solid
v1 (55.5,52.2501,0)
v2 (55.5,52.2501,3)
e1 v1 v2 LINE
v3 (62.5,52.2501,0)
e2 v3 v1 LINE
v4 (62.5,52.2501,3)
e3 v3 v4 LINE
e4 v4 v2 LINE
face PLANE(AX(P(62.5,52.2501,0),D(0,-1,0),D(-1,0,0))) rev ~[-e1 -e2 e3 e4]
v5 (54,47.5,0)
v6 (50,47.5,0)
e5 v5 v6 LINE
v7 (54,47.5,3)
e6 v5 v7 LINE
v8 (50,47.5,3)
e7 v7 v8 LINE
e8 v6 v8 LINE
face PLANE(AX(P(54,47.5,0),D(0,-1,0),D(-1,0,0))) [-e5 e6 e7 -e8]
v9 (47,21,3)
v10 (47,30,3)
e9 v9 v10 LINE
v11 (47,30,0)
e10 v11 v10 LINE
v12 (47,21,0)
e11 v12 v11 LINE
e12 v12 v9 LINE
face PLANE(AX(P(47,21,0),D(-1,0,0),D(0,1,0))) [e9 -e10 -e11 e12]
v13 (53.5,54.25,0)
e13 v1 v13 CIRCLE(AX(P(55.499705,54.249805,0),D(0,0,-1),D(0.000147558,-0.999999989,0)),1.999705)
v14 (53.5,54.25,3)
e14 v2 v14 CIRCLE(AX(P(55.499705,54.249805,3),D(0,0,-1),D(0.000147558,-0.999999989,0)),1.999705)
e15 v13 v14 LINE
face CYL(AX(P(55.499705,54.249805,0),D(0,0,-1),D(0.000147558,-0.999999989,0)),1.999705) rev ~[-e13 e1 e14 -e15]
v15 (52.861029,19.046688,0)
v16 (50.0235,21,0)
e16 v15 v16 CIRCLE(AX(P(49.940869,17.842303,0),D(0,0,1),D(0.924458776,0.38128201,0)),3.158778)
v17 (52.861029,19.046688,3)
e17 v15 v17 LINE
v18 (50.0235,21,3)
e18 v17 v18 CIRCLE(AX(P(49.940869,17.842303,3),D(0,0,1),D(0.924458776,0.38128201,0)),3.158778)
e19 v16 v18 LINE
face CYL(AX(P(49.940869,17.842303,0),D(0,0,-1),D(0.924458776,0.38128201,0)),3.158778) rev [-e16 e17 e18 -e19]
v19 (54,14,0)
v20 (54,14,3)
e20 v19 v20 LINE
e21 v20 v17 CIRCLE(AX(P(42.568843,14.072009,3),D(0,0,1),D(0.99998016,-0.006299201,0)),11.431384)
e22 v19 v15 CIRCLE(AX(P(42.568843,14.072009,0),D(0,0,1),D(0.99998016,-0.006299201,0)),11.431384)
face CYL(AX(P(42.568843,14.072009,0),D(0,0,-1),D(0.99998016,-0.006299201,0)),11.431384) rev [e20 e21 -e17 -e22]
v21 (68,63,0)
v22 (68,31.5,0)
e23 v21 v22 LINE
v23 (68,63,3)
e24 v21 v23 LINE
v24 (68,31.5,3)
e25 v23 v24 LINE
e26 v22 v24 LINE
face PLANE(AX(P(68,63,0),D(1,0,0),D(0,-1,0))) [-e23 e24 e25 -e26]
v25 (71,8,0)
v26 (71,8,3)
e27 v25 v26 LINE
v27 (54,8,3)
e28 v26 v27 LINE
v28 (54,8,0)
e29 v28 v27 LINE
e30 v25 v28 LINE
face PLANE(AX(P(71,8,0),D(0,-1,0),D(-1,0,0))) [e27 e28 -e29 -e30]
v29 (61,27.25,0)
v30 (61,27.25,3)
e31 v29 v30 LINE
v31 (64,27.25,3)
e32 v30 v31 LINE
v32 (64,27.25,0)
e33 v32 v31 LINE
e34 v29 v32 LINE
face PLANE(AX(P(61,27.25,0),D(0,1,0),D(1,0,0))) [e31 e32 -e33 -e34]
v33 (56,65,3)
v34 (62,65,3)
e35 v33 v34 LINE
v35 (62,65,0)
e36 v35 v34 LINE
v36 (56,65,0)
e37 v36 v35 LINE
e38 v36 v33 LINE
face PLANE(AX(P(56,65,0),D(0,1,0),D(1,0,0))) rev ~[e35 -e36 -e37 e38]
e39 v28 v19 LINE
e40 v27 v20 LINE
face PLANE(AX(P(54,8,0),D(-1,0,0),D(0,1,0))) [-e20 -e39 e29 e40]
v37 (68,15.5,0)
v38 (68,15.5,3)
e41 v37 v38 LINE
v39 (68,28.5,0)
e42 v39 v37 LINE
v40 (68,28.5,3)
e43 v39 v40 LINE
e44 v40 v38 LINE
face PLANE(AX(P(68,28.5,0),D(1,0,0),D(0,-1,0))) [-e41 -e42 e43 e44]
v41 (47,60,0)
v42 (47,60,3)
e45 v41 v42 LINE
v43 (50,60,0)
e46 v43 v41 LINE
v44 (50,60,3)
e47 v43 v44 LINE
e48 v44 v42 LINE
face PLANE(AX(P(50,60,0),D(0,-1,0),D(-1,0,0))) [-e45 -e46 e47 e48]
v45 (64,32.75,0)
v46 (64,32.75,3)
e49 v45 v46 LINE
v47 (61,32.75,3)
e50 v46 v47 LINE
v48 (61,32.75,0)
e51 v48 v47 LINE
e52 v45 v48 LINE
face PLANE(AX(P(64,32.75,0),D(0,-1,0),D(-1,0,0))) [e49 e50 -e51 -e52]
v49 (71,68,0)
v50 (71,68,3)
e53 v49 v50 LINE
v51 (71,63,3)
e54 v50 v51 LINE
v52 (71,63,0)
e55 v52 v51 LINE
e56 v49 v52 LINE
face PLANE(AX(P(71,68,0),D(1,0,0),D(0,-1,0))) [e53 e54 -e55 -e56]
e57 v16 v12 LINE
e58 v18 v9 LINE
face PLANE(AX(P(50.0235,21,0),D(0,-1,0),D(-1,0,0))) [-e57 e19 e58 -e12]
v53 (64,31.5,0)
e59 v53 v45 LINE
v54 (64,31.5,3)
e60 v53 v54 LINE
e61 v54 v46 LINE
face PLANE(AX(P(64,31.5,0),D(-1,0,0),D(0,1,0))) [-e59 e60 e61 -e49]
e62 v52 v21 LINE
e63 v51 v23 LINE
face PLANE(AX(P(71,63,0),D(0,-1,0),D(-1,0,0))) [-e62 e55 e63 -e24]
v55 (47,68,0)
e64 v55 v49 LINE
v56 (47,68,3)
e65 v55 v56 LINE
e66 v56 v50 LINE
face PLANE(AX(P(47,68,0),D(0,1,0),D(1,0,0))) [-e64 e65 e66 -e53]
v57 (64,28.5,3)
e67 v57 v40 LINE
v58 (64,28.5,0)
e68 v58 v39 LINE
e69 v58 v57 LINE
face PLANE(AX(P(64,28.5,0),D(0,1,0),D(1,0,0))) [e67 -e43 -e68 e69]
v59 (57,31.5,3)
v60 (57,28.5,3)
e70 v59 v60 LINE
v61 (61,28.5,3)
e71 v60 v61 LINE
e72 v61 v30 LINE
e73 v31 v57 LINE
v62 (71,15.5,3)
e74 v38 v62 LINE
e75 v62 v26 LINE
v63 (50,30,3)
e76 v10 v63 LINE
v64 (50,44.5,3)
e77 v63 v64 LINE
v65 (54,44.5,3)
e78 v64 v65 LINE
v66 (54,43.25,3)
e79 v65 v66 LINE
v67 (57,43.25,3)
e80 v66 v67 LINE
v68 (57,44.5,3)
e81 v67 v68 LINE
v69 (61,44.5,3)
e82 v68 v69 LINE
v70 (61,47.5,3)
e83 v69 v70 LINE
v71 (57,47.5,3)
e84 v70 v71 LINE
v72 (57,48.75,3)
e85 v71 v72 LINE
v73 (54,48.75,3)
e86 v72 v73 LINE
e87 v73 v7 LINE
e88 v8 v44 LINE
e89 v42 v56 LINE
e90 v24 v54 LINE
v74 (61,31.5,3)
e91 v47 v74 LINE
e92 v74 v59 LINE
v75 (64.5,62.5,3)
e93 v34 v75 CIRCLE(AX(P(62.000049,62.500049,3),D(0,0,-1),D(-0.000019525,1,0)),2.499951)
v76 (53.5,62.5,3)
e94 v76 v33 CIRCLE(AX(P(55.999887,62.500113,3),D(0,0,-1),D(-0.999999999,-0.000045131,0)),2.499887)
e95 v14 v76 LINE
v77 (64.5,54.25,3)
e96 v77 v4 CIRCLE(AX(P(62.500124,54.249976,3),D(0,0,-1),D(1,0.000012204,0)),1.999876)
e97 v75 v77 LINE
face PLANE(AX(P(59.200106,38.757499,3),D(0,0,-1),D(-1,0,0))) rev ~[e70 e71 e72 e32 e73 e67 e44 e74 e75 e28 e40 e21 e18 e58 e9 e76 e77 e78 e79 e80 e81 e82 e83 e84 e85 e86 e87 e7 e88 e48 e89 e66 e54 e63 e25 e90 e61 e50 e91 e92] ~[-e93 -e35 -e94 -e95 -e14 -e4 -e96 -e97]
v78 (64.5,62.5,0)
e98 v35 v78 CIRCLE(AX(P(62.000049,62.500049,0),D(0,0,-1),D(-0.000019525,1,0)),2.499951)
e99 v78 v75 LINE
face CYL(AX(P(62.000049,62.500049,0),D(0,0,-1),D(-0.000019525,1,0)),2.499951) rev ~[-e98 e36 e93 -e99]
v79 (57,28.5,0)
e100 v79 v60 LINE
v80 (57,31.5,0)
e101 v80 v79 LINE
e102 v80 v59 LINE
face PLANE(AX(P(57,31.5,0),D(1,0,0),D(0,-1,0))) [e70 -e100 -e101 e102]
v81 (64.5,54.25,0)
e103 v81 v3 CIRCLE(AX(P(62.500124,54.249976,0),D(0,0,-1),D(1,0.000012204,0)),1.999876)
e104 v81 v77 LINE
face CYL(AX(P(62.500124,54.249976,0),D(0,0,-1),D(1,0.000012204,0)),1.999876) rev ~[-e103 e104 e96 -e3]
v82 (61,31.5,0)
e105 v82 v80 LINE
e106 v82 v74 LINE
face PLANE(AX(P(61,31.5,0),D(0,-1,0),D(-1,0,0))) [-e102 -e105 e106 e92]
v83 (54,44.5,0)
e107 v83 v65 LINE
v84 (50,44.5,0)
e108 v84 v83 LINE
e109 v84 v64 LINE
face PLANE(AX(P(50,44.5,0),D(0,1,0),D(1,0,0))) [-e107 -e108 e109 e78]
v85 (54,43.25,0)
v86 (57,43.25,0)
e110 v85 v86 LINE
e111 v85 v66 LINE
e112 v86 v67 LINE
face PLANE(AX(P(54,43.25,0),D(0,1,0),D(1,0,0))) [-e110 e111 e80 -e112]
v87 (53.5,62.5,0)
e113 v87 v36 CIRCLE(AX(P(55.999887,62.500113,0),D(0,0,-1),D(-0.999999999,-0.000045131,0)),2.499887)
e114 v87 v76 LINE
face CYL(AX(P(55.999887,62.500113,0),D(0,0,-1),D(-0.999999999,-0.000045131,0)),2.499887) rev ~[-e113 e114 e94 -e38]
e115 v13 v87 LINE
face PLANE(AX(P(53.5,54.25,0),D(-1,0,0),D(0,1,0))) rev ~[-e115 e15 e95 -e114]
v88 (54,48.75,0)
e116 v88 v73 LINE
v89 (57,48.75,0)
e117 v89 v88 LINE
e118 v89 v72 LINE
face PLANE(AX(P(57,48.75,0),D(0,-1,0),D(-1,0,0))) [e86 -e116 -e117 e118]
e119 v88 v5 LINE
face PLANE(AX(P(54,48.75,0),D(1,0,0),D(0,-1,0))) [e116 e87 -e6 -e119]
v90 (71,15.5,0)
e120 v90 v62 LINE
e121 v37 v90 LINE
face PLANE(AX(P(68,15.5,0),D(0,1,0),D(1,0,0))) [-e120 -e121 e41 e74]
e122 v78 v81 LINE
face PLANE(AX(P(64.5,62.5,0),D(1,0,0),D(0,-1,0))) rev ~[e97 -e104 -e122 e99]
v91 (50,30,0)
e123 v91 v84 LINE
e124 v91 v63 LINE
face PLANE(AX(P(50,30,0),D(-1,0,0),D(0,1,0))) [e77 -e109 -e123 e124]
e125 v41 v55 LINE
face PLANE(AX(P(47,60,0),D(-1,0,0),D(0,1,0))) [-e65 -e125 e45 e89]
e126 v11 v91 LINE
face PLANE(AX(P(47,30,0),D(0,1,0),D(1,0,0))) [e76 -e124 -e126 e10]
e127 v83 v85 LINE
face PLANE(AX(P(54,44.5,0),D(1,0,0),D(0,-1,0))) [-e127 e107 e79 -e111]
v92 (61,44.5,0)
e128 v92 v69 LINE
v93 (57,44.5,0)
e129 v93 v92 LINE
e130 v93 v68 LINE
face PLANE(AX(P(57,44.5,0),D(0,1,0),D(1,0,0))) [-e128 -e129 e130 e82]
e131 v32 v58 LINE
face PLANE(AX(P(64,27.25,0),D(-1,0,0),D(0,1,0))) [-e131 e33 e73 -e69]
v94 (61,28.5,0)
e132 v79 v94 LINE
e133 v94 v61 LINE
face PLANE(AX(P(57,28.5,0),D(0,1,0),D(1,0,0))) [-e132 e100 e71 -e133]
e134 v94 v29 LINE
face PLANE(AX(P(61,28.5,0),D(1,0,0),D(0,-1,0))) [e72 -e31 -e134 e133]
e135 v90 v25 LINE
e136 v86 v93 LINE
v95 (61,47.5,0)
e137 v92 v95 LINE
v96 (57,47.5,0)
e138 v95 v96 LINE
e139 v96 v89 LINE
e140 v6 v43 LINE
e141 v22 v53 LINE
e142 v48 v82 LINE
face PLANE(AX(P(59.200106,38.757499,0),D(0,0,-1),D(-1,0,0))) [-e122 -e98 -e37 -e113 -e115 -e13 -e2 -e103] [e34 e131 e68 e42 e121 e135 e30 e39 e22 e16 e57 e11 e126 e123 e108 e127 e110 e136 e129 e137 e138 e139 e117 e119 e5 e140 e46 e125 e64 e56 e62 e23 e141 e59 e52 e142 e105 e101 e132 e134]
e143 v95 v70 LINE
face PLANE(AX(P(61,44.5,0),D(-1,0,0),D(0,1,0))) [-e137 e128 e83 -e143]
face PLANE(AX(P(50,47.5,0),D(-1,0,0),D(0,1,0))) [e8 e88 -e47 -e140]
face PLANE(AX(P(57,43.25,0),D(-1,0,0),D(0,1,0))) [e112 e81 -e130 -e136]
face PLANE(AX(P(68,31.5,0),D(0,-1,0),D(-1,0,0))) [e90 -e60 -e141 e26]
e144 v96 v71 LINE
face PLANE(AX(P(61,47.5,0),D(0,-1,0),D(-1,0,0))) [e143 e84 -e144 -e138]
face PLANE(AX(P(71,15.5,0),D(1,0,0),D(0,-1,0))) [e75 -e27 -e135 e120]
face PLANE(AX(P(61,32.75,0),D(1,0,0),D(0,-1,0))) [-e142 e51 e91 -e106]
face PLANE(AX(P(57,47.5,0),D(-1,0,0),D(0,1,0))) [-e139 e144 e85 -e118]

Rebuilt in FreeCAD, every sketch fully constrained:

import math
import FreeCAD as App
import Part
import Sketcher

doc = App.newDocument("Part")
body = doc.addObject("PartDesign::Body", "Body")

# Sketch on XY plane
sketch1 = doc.addObject("Sketcher::SketchObject", "Sketch")
body.addObject(sketch1)
sketch1.AttachmentSupport = (doc.XY_Plane, [""])
sketch1.MapMode = "FlatFace"
sketch1.addGeometry([
    Part.LineSegment(App.Vector(71, 63, 0), App.Vector(71, 68, 0)),  # 0
    Part.LineSegment(App.Vector(71, 68, 0), App.Vector(47, 68, 0)),  # 1
    Part.LineSegment(App.Vector(47, 68, 0), App.Vector(47, 60, 0)),  # 2
    Part.LineSegment(App.Vector(47, 60, 0), App.Vector(50, 60, 0)),  # 3
    Part.LineSegment(App.Vector(50, 60, 0), App.Vector(50, 47.5, 0)),  # 4
    Part.LineSegment(App.Vector(50, 47.5, 0), App.Vector(54, 47.5, 0)),  # 5
    Part.LineSegment(App.Vector(54, 47.5, 0), App.Vector(54, 48.8, 0)),  # 6
    Part.LineSegment(App.Vector(54, 48.8, 0), App.Vector(57, 48.8, 0)),  # 7
    Part.LineSegment(App.Vector(57, 48.8, 0), App.Vector(57, 47.5, 0)),  # 8
    Part.LineSegment(App.Vector(57, 47.5, 0), App.Vector(61, 47.5, 0)),  # 9
    Part.LineSegment(App.Vector(61, 47.5, 0), App.Vector(61, 44.5, 0)),  # 10
    Part.LineSegment(App.Vector(61, 44.5, 0), App.Vector(57, 44.5, 0)),  # 11
    Part.LineSegment(App.Vector(57, 44.5, 0), App.Vector(57, 43.2, 0)),  # 12
    Part.LineSegment(App.Vector(57, 43.2, 0), App.Vector(54, 43.2, 0)),  # 13
    Part.LineSegment(App.Vector(54, 43.2, 0), App.Vector(54, 44.5, 0)),  # 14
    Part.LineSegment(App.Vector(54, 44.5, 0), App.Vector(50, 44.5, 0)),  # 15
    Part.LineSegment(App.Vector(50, 44.5, 0), App.Vector(50, 30, 0)),  # 16
    Part.LineSegment(App.Vector(50, 30, 0), App.Vector(47, 30, 0)),  # 17
    Part.LineSegment(App.Vector(47, 30, 0), App.Vector(47, 21, 0)),  # 18
    Part.LineSegment(App.Vector(47, 21, 0), App.Vector(50, 21, 0)),  # 19
    Part.ArcOfCircle(Part.Circle(App.Vector(49.9, 17.8, 0), App.Vector(0, 0, 1), 3.2), math.radians(22), math.radians(89)),  # 20
    Part.ArcOfCircle(Part.Circle(App.Vector(42.6, 14.1, 0), App.Vector(0, 0, 1), 11.4), math.radians(0), math.radians(26)),  # 21
    Part.LineSegment(App.Vector(54, 14, 0), App.Vector(54, 8, 0)),  # 22
    Part.LineSegment(App.Vector(54, 8, 0), App.Vector(71, 8, 0)),  # 23
    Part.LineSegment(App.Vector(71, 8, 0), App.Vector(71, 15.5, 0)),  # 24
    Part.LineSegment(App.Vector(71, 15.5, 0), App.Vector(68, 15.5, 0)),  # 25
    Part.LineSegment(App.Vector(68, 15.5, 0), App.Vector(68, 28.5, 0)),  # 26
    Part.LineSegment(App.Vector(68, 28.5, 0), App.Vector(64, 28.5, 0)),  # 27
    Part.LineSegment(App.Vector(64, 28.5, 0), App.Vector(64, 27.2, 0)),  # 28
    Part.LineSegment(App.Vector(64, 27.2, 0), App.Vector(61, 27.2, 0)),  # 29
    Part.LineSegment(App.Vector(61, 27.2, 0), App.Vector(61, 28.5, 0)),  # 30
    Part.LineSegment(App.Vector(61, 28.5, 0), App.Vector(57, 28.5, 0)),  # 31
    Part.LineSegment(App.Vector(57, 28.5, 0), App.Vector(57, 31.5, 0)),  # 32
    Part.LineSegment(App.Vector(57, 31.5, 0), App.Vector(61, 31.5, 0)),  # 33
    Part.LineSegment(App.Vector(61, 31.5, 0), App.Vector(61, 32.8, 0)),  # 34
    Part.LineSegment(App.Vector(61, 32.8, 0), App.Vector(64, 32.8, 0)),  # 35
    Part.LineSegment(App.Vector(64, 32.8, 0), App.Vector(64, 31.5, 0)),  # 36
    Part.LineSegment(App.Vector(64, 31.5, 0), App.Vector(68, 31.5, 0)),  # 37
    Part.LineSegment(App.Vector(68, 31.5, 0), App.Vector(68, 63, 0)),  # 38
    Part.LineSegment(App.Vector(68, 63, 0), App.Vector(71, 63, 0)),  # 39
    Part.LineSegment(App.Vector(56, 65, 0), App.Vector(62, 65, 0)),  # 40
    Part.ArcOfCircle(Part.Circle(App.Vector(62, 62.5, 0), App.Vector(0, 0, 1), 2.5), math.radians(0), math.radians(90)),  # 41
    Part.LineSegment(App.Vector(64.5, 62.5, 0), App.Vector(64.5, 54.2, 0)),  # 42
    Part.ArcOfCircle(Part.Circle(App.Vector(62.5, 54.2, 0), App.Vector(0, 0, 1), 2), math.radians(-90), math.radians(0)),  # 43
    Part.LineSegment(App.Vector(62.5, 52.3, 0), App.Vector(55.5, 52.3, 0)),  # 44
    Part.ArcOfCircle(Part.Circle(App.Vector(55.5, 54.2, 0), App.Vector(0, 0, 1), 2), math.radians(180), math.radians(270)),  # 45
    Part.LineSegment(App.Vector(53.5, 54.2, 0), App.Vector(53.5, 62.5, 0)),  # 46
    Part.ArcOfCircle(Part.Circle(App.Vector(56, 62.5, 0), App.Vector(0, 0, 1), 2.5), math.radians(90), math.radians(180)),  # 47
], False)
sketch1.addConstraint([
    Sketcher.Constraint("Coincident", 0, 2, 1, 1),
    Sketcher.Constraint("Coincident", 1, 2, 2, 1),
    Sketcher.Constraint("Coincident", 2, 2, 3, 1),
    Sketcher.Constraint("Coincident", 3, 2, 4, 1),
    Sketcher.Constraint("Coincident", 4, 2, 5, 1),
    Sketcher.Constraint("Coincident", 5, 2, 6, 1),
    Sketcher.Constraint("Coincident", 6, 2, 7, 1),
    Sketcher.Constraint("Coincident", 7, 2, 8, 1),
    Sketcher.Constraint("Coincident", 8, 2, 9, 1),
    Sketcher.Constraint("Coincident", 9, 2, 10, 1),
    Sketcher.Constraint("Coincident", 10, 2, 11, 1),
    Sketcher.Constraint("Coincident", 11, 2, 12, 1),
    Sketcher.Constraint("Coincident", 12, 2, 13, 1),
    Sketcher.Constraint("Coincident", 13, 2, 14, 1),
    Sketcher.Constraint("Coincident", 14, 2, 15, 1),
    Sketcher.Constraint("Coincident", 15, 2, 16, 1),
    Sketcher.Constraint("Coincident", 16, 2, 17, 1),
    Sketcher.Constraint("Coincident", 17, 2, 18, 1),
    Sketcher.Constraint("Coincident", 18, 2, 19, 1),
    Sketcher.Constraint("Coincident", 19, 2, 20, 2),
    Sketcher.Constraint("Coincident", 20, 1, 21, 2),
    Sketcher.Constraint("Coincident", 21, 1, 22, 1),
    Sketcher.Constraint("Coincident", 22, 2, 23, 1),
    Sketcher.Constraint("Coincident", 23, 2, 24, 1),
    Sketcher.Constraint("Coincident", 24, 2, 25, 1),
    Sketcher.Constraint("Coincident", 25, 2, 26, 1),
    Sketcher.Constraint("Coincident", 26, 2, 27, 1),
    Sketcher.Constraint("Coincident", 27, 2, 28, 1),
    Sketcher.Constraint("Coincident", 28, 2, 29, 1),
    Sketcher.Constraint("Coincident", 29, 2, 30, 1),
    Sketcher.Constraint("Coincident", 30, 2, 31, 1),
    Sketcher.Constraint("Coincident", 31, 2, 32, 1),
    Sketcher.Constraint("Coincident", 32, 2, 33, 1),
    Sketcher.Constraint("Coincident", 33, 2, 34, 1),
    Sketcher.Constraint("Coincident", 34, 2, 35, 1),
    Sketcher.Constraint("Coincident", 35, 2, 36, 1),
    Sketcher.Constraint("Coincident", 36, 2, 37, 1),
    Sketcher.Constraint("Coincident", 37, 2, 38, 1),
    Sketcher.Constraint("Coincident", 38, 2, 39, 1),
    Sketcher.Constraint("Coincident", 39, 2, 0, 1),
    Sketcher.Constraint("Coincident", 40, 2, 41, 2),
    Sketcher.Constraint("Coincident", 41, 1, 42, 1),
    Sketcher.Constraint("Coincident", 42, 2, 43, 2),
    Sketcher.Constraint("Coincident", 43, 1, 44, 1),
    Sketcher.Constraint("Coincident", 44, 2, 45, 2),
    Sketcher.Constraint("Coincident", 45, 1, 46, 1),
    Sketcher.Constraint("Coincident", 46, 2, 47, 2),
    Sketcher.Constraint("Coincident", 47, 1, 40, 1),
    Sketcher.Constraint("Vertical", 0),
    Sketcher.Constraint("Horizontal", 1),
    Sketcher.Constraint("Vertical", 2),
    Sketcher.Constraint("Horizontal", 3),
    Sketcher.Constraint("Vertical", 4),
    Sketcher.Constraint("Horizontal", 5),
    Sketcher.Constraint("Vertical", 6),
    Sketcher.Constraint("Horizontal", 7),
    Sketcher.Constraint("Vertical", 8),
    Sketcher.Constraint("Horizontal", 9),
    Sketcher.Constraint("Vertical", 10),
    Sketcher.Constraint("Horizontal", 11),
    Sketcher.Constraint("Vertical", 12),
    Sketcher.Constraint("Horizontal", 13),
    Sketcher.Constraint("Vertical", 14),
    Sketcher.Constraint("Horizontal", 15),
    Sketcher.Constraint("Vertical", 16),
    Sketcher.Constraint("Horizontal", 17),
    Sketcher.Constraint("Vertical", 18),
    Sketcher.Constraint("Horizontal", 19),
    Sketcher.Constraint("Vertical", 22),
    Sketcher.Constraint("Horizontal", 23),
    Sketcher.Constraint("Vertical", 24),
    Sketcher.Constraint("Horizontal", 25),
    Sketcher.Constraint("Vertical", 26),
    Sketcher.Constraint("Horizontal", 27),
    Sketcher.Constraint("Vertical", 28),
    Sketcher.Constraint("Horizontal", 29),
    Sketcher.Constraint("Vertical", 30),
    Sketcher.Constraint("Horizontal", 31),
    Sketcher.Constraint("Vertical", 32),
    Sketcher.Constraint("Horizontal", 33),
    Sketcher.Constraint("Vertical", 34),
    Sketcher.Constraint("Horizontal", 35),
    Sketcher.Constraint("Vertical", 36),
    Sketcher.Constraint("Horizontal", 37),
    Sketcher.Constraint("Vertical", 38),
    Sketcher.Constraint("Horizontal", 39),
    Sketcher.Constraint("Horizontal", 40),
    Sketcher.Constraint("Vertical", 42),
    Sketcher.Constraint("Horizontal", 44),
    Sketcher.Constraint("Vertical", 46),
    Sketcher.Constraint("Horizontal", 5, 2, 8, 2),
    Sketcher.Constraint("Horizontal", 11, 2, 14, 2),
    Sketcher.Constraint("Horizontal", 27, 2, 30, 2),
    Sketcher.Constraint("Horizontal", 33, 2, 36, 2),
    Sketcher.Constraint("Horizontal", 42, 2, 45, 1),
    Sketcher.Constraint("Horizontal", 41, 1, 46, 2),
    Sketcher.Constraint("Vertical", 8, 2, 11, 2),
    Sketcher.Constraint("Vertical", 6, 2, 13, 2),
    Sketcher.Constraint("Vertical", 4, 2, 15, 2),
    Sketcher.Constraint("Vertical", 2, 2, 17, 2),
    Sketcher.Constraint("Vertical", 14, 2, 21, 1),
    Sketcher.Constraint("Vertical", 0, 2, 23, 2),
    Sketcher.Constraint("Vertical", 10, 2, 29, 2),
    Sketcher.Constraint("Vertical", 12, 2, 31, 2),
    Sketcher.Constraint("Vertical", 30, 2, 33, 2),
    Sketcher.Constraint("Vertical", 28, 2, 35, 2),
    Sketcher.Constraint("Vertical", 26, 2, 37, 2),
    Sketcher.Constraint("Equal", 3, 7),
    Sketcher.Constraint("Equal", 5, 9),
    Sketcher.Constraint("Equal", 17, 25),
    Sketcher.Constraint("Equal", 15, 27),
    Sketcher.Constraint("Equal", 25, 29),
    Sketcher.Constraint("Equal", 39, 10),
    Sketcher.Constraint("Equal", 8, 12),
    Sketcher.Constraint("Equal", 40, 22),
    Sketcher.Constraint("Equal", 14, 28),
    Sketcher.Constraint("Equal", 10, 32),
    Sketcher.Constraint("Equal", 30, 34),
    Sketcher.Constraint("DistanceX", 1, 2, 1, 1, 24.0),
    Sketcher.Constraint("DistanceX", 3, 1, 3, 2, 3.0),
    Sketcher.Constraint("DistanceX", 40, 1, 40, 2, 6.0),
    Sketcher.Constraint("DistanceX", 44, 2, 44, 1, 7.0),
    Sketcher.Constraint("DistanceY", 0, 1, 0, 2, 5.0),
    Sketcher.Constraint("DistanceY", 2, 2, 2, 1, 8.0),
    Sketcher.Constraint("DistanceY", 18, 2, 18, 1, 9.0),
    Sketcher.Constraint("DistanceY", 26, 1, 26, 2, 13.0),
    Sketcher.Constraint("DistanceY", 4, 2, 4, 1, 12.5),
    Sketcher.Constraint("DistanceY", 16, 2, 16, 1, 14.5),
    Sketcher.Constraint("DistanceY", 24, 1, 24, 2, 7.5),
    Sketcher.Constraint("DistanceY", 38, 1, 38, 2, 31.5),
    Sketcher.Constraint("DistanceX", -1, 1, 0, 2, 71.0),
    Sketcher.Constraint("DistanceY", -1, 1, 0, 2, 68.0),
    Sketcher.Constraint("DistanceX", -1, 1, 40, 2, 62.0),
    Sketcher.Constraint("DistanceY", -1, 1, 40, 2, 65.0),
    Sketcher.Constraint("DistanceX", 43, 1, 42, 2, 2.0),
    Sketcher.Constraint("DistanceX", 45, 1, 44, 2, 2.0),
    Sketcher.Constraint("DistanceY", 6, 1, 6, 2, 1.25),
    Sketcher.Constraint("DistanceY", 42, 2, 42, 1, 8.25),
    Sketcher.Constraint("DistanceX", -1, 1, 41, 1, 64.5),
    Sketcher.Constraint("DistanceY", -1, 1, 41, 1, 62.5),
    Sketcher.Constraint("Radius", 41, 2.499951),
    Sketcher.Constraint("DistanceX", 19, 1, 19, 2, 3.0235),
    Sketcher.Constraint("Radius", 20, 3.158778),
    Sketcher.Constraint("Radius", 21, 11.431384),
    Sketcher.Constraint("Radius", 43, 1.999876),
    Sketcher.Constraint("Radius", 45, 1.999705),
    Sketcher.Constraint("Radius", 47, 2.499887),
    Sketcher.Constraint("DistanceY", -1, 1, 43, 1, 52.2501),
    Sketcher.Constraint("DistanceY", 20, 3, 45, 3, 36.407502),
    Sketcher.Constraint("DistanceY", -1, 1, 21, 3, 14.072009),
])
pad1 = doc.addObject("PartDesign::Pad", "Pad")
body.addObject(pad1)
pad1.Profile = sketch1
pad1.Length = 3

doc.recompute()
